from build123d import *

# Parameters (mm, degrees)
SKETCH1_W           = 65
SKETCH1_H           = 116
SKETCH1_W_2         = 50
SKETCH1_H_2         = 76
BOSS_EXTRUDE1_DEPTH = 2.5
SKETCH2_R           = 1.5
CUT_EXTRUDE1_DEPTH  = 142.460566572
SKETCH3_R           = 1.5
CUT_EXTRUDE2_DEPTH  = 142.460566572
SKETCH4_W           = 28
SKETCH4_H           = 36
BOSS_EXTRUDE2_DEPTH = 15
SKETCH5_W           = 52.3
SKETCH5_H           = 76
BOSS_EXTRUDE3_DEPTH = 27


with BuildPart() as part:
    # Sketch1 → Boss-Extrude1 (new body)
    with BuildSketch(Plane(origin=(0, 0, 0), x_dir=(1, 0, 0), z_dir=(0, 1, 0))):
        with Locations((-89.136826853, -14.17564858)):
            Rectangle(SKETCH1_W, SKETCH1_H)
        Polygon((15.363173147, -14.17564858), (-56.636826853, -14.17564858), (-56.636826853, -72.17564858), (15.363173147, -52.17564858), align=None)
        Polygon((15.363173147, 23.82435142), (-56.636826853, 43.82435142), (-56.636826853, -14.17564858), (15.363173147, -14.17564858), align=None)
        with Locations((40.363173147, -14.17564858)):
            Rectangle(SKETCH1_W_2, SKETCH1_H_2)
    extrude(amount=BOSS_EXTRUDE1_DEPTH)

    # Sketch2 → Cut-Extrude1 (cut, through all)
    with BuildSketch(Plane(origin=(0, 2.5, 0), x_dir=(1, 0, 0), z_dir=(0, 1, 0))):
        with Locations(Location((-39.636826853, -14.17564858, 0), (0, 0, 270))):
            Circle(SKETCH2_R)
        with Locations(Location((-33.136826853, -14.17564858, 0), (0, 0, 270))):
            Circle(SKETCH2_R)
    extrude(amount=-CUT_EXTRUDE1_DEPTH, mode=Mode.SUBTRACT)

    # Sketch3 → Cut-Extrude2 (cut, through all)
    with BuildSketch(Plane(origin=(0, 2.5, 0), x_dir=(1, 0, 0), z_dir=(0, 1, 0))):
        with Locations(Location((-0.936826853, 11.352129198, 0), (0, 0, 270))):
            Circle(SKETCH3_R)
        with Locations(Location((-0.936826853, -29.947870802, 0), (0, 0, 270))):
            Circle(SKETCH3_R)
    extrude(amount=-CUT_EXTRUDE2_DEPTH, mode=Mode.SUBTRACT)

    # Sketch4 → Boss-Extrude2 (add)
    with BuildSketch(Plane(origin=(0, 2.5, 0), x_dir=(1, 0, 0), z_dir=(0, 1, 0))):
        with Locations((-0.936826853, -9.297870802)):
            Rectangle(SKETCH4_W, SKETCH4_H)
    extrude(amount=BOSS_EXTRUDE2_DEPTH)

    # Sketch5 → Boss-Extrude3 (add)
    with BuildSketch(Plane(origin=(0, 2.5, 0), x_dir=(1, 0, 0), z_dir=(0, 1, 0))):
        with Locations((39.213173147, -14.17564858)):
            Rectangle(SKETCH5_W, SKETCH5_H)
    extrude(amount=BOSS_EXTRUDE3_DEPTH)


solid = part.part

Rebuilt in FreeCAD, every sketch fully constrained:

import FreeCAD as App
import Part
import Sketcher

V = App.Vector
Q = App.Units.Quantity


def add_polygon(sketch, points):
    """Adds a closed chain of lines whose ends are joined by coincident constraints."""
    first, n = sketch.GeometryCount, len(points)
    for a, b in zip(points, points[1:] + points[:1]):
        sketch.addGeometry(Part.LineSegment(App.Vector(*a, 0), App.Vector(*b, 0)), False)
    for i in range(n):
        sketch.addConstraint(Sketcher.Constraint("Coincident", first + i, 2, first + (i + 1) % n, 1))

doc = App.newDocument("Part")
params = doc.addObject("Spreadsheet::Sheet", "Params")
for row, (alias, value) in enumerate([
    ("sketch1_width", "65 mm"),
    ("sketch1_width2", "50 mm"),
    ("sketch1_height", "116 mm"),
    ("sketch1_height2", "76 mm"),
    ("pad1_length", "2.5 mm"),
    ("sketch2_diameter", "3 mm"),
    ("sketch3_diameter", "3 mm"),
    ("sketch4_width", "28 mm"),
    ("sketch4_height", "36 mm"),
    ("pad2_length", "15 mm"),
    ("sketch5_height", "76 mm"),
    ("sketch5_width", "52.3 mm"),
    ("pad3_length", "27 mm"),
], start=1):
    params.set(f"A{row}", alias)
    params.set(f"B{row}", "=" + value)
    params.setAlias(f"B{row}", alias)

body = doc.addObject("PartDesign::Body", "Body")

sketch1 = doc.addObject("Sketcher::SketchObject", "Sketch")
body.addObject(sketch1)
sketch1.AttachmentSupport = (doc.XZ_Plane, [""])
sketch1.MapMode = "FlatFace"
add_polygon(sketch1, [(-122, -44), (-122, 72), (-57, 72), (15, 52), (65, 52), (65, -24), (15, -24), (-57, -44)])
sketch1.addConstraint([
    Sketcher.Constraint("Vertical", 0),
    Sketcher.Constraint("Horizontal", 1),
    Sketcher.Constraint("Horizontal", 3),
    Sketcher.Constraint("Vertical", 4),
    Sketcher.Constraint("Horizontal", 5),
    Sketcher.Constraint("Horizontal", 7),
    Sketcher.Constraint("Vertical", 2, 2, 5, 2),
    Sketcher.Constraint("Vertical", 1, 2, 6, 2),
    Sketcher.Constraint("Equal", 2, 6),
    Sketcher.Constraint("DistanceX", 1, 1, 1, 2, Q("65 mm")),
    Sketcher.Constraint("DistanceX", 3, 1, 3, 2, Q("50 mm")),
    Sketcher.Constraint("DistanceY", 0, 1, 0, 2, Q("116 mm")),
    Sketcher.Constraint("DistanceY", 4, 2, 4, 1, Q("76 mm")),
    Sketcher.Constraint("DistanceX", 1, 2, 2, 2, Q("72 mm")),
    Sketcher.Constraint("DistanceY", -1, 1, 0, 2, Q("72.175649 mm")),
    Sketcher.Constraint("DistanceX", 0, 2, -1, 1, Q("121.636827 mm")),
])
sketch1.setExpression("Constraints[17]", "Params.sketch1_width")
sketch1.setExpression("Constraints[18]", "Params.sketch1_width2")
sketch1.setExpression("Constraints[19]", "Params.sketch1_height")
sketch1.setExpression("Constraints[20]", "Params.sketch1_height2")
pad1 = doc.addObject("PartDesign::Pad", "Pad")
body.addObject(pad1)
pad1.Profile = sketch1
pad1.setExpression("Length", "Params.pad1_length")
pad1.Reversed = True

sketch2 = doc.addObject("Sketcher::SketchObject", "Sketch001")
body.addObject(sketch2)
sketch2.AttachmentSupport = (doc.XZ_Plane, [""])
sketch2.MapMode = "FlatFace"
sketch2.AttachmentOffset = App.Placement(V(0, 0, -2.5), App.Rotation())
sketch2.addGeometry([
    Part.Circle(V(-39.6, 14.2, 0), V(0, 0, 1), 1.5),
    Part.Circle(V(-33.1, 14.2, 0), V(0, 0, 1), 1.5),
], False)
sketch2.addConstraint([
    Sketcher.Constraint("Equal", 0, 1),
    Sketcher.Constraint("Horizontal", 0, 3, 1, 3),
    Sketcher.Constraint("Diameter", 0, Q("3 mm")),
    Sketcher.Constraint("DistanceX", 0, 3, 1, 3, Q("6.5 mm")),
    Sketcher.Constraint("DistanceY", -1, 1, 0, 3, Q("14.175649 mm")),
    Sketcher.Constraint("DistanceX", 0, 3, -1, 1, Q("39.636827 mm")),
])
sketch2.setExpression("Constraints[2]", "Params.sketch2_diameter")
pocket1 = doc.addObject("PartDesign::Pocket", "Pocket")
body.addObject(pocket1)
pocket1.Profile = sketch2
pocket1.Type = "ThroughAll"
pocket1.Reversed = True

sketch3 = doc.addObject("Sketcher::SketchObject", "Sketch002")
body.addObject(sketch3)
sketch3.AttachmentSupport = (doc.XZ_Plane, [""])
sketch3.MapMode = "FlatFace"
sketch3.AttachmentOffset = App.Placement(V(0, 0, -2.5), App.Rotation())
sketch3.addGeometry([
    Part.Circle(V(-0.9, -11.4, 0), V(0, 0, 1), 1.5),
    Part.Circle(V(-0.9, 29.9, 0), V(0, 0, 1), 1.5),
], False)
sketch3.addConstraint([
    Sketcher.Constraint("Equal", 0, 1),
    Sketcher.Constraint("Vertical", 0, 3, 1, 3),
    Sketcher.Constraint("Diameter", 0, Q("3 mm")),
    Sketcher.Constraint("DistanceY", 0, 3, 1, 3, Q("41.3 mm")),
    Sketcher.Constraint("DistanceY", 0, 3, -1, 1, Q("11.352129 mm")),
    Sketcher.Constraint("DistanceX", 0, 3, -1, 1, Q("0.936827 mm")),
])
sketch3.setExpression("Constraints[2]", "Params.sketch3_diameter")
pocket2 = doc.addObject("PartDesign::Pocket", "Pocket001")
body.addObject(pocket2)
pocket2.Profile = sketch3
pocket2.Type = "ThroughAll"
pocket2.Reversed = True

sketch4 = doc.addObject("Sketcher::SketchObject", "Sketch003")
body.addObject(sketch4)
sketch4.AttachmentSupport = (doc.XZ_Plane, [""])
sketch4.MapMode = "FlatFace"
sketch4.AttachmentOffset = App.Placement(V(0, 0, -2.5), App.Rotation())
add_polygon(sketch4, [(-15, -9), (-15, 27), (13, 27), (13, -9)])
sketch4.addConstraint([
    Sketcher.Constraint("Vertical", 0),
    Sketcher.Constraint("Horizontal", 1),
    Sketcher.Constraint("Vertical", 2),
    Sketcher.Constraint("Horizontal", 3),
    Sketcher.Constraint("DistanceX", 1, 1, 1, 2, Q("28 mm")),
    Sketcher.Constraint("DistanceY", 0, 1, 0, 2, Q("36 mm")),
    Sketcher.Constraint("DistanceY", -1, 1, 0, 2, Q("27.297871 mm")),
    Sketcher.Constraint("DistanceX", 0, 2, -1, 1, Q("14.936827 mm")),
])
sketch4.setExpression("Constraints[8]", "Params.sketch4_width")
sketch4.setExpression("Constraints[9]", "Params.sketch4_height")
pad2 = doc.addObject("PartDesign::Pad", "Pad001")
body.addObject(pad2)
pad2.Profile = sketch4
pad2.setExpression("Length", "Params.pad2_length")
pad2.Reversed = True

sketch5 = doc.addObject("Sketcher::SketchObject", "Sketch004")
body.addObject(sketch5)
sketch5.AttachmentSupport = (doc.XZ_Plane, [""])
sketch5.MapMode = "FlatFace"
sketch5.AttachmentOffset = App.Placement(V(0, 0, -2.5), App.Rotation())
add_polygon(sketch5, [(13, -24), (13, 52), (65, 52), (65, -24)])
sketch5.addConstraint([
    Sketcher.Constraint("Vertical", 0),
    Sketcher.Constraint("Horizontal", 1),
    Sketcher.Constraint("Vertical", 2),
    Sketcher.Constraint("Horizontal", 3),
    Sketcher.Constraint("DistanceY", 0, 1, 0, 2, Q("76 mm")),
    Sketcher.Constraint("DistanceX", 1, 1, 1, 2, Q("52.3 mm")),
    Sketcher.Constraint("DistanceY", -1, 1, 0, 2, Q("52.175649 mm")),
    Sketcher.Constraint("DistanceX", -1, 1, 0, 2, Q("13.063173 mm")),
])
sketch5.setExpression("Constraints[8]", "Params.sketch5_height")
sketch5.setExpression("Constraints[9]", "Params.sketch5_width")
pad3 = doc.addObject("PartDesign::Pad", "Pad002")
body.addObject(pad3)
pad3.Profile = sketch5
pad3.setExpression("Length", "Params.pad3_length")
pad3.Reversed = True

doc.recompute()
